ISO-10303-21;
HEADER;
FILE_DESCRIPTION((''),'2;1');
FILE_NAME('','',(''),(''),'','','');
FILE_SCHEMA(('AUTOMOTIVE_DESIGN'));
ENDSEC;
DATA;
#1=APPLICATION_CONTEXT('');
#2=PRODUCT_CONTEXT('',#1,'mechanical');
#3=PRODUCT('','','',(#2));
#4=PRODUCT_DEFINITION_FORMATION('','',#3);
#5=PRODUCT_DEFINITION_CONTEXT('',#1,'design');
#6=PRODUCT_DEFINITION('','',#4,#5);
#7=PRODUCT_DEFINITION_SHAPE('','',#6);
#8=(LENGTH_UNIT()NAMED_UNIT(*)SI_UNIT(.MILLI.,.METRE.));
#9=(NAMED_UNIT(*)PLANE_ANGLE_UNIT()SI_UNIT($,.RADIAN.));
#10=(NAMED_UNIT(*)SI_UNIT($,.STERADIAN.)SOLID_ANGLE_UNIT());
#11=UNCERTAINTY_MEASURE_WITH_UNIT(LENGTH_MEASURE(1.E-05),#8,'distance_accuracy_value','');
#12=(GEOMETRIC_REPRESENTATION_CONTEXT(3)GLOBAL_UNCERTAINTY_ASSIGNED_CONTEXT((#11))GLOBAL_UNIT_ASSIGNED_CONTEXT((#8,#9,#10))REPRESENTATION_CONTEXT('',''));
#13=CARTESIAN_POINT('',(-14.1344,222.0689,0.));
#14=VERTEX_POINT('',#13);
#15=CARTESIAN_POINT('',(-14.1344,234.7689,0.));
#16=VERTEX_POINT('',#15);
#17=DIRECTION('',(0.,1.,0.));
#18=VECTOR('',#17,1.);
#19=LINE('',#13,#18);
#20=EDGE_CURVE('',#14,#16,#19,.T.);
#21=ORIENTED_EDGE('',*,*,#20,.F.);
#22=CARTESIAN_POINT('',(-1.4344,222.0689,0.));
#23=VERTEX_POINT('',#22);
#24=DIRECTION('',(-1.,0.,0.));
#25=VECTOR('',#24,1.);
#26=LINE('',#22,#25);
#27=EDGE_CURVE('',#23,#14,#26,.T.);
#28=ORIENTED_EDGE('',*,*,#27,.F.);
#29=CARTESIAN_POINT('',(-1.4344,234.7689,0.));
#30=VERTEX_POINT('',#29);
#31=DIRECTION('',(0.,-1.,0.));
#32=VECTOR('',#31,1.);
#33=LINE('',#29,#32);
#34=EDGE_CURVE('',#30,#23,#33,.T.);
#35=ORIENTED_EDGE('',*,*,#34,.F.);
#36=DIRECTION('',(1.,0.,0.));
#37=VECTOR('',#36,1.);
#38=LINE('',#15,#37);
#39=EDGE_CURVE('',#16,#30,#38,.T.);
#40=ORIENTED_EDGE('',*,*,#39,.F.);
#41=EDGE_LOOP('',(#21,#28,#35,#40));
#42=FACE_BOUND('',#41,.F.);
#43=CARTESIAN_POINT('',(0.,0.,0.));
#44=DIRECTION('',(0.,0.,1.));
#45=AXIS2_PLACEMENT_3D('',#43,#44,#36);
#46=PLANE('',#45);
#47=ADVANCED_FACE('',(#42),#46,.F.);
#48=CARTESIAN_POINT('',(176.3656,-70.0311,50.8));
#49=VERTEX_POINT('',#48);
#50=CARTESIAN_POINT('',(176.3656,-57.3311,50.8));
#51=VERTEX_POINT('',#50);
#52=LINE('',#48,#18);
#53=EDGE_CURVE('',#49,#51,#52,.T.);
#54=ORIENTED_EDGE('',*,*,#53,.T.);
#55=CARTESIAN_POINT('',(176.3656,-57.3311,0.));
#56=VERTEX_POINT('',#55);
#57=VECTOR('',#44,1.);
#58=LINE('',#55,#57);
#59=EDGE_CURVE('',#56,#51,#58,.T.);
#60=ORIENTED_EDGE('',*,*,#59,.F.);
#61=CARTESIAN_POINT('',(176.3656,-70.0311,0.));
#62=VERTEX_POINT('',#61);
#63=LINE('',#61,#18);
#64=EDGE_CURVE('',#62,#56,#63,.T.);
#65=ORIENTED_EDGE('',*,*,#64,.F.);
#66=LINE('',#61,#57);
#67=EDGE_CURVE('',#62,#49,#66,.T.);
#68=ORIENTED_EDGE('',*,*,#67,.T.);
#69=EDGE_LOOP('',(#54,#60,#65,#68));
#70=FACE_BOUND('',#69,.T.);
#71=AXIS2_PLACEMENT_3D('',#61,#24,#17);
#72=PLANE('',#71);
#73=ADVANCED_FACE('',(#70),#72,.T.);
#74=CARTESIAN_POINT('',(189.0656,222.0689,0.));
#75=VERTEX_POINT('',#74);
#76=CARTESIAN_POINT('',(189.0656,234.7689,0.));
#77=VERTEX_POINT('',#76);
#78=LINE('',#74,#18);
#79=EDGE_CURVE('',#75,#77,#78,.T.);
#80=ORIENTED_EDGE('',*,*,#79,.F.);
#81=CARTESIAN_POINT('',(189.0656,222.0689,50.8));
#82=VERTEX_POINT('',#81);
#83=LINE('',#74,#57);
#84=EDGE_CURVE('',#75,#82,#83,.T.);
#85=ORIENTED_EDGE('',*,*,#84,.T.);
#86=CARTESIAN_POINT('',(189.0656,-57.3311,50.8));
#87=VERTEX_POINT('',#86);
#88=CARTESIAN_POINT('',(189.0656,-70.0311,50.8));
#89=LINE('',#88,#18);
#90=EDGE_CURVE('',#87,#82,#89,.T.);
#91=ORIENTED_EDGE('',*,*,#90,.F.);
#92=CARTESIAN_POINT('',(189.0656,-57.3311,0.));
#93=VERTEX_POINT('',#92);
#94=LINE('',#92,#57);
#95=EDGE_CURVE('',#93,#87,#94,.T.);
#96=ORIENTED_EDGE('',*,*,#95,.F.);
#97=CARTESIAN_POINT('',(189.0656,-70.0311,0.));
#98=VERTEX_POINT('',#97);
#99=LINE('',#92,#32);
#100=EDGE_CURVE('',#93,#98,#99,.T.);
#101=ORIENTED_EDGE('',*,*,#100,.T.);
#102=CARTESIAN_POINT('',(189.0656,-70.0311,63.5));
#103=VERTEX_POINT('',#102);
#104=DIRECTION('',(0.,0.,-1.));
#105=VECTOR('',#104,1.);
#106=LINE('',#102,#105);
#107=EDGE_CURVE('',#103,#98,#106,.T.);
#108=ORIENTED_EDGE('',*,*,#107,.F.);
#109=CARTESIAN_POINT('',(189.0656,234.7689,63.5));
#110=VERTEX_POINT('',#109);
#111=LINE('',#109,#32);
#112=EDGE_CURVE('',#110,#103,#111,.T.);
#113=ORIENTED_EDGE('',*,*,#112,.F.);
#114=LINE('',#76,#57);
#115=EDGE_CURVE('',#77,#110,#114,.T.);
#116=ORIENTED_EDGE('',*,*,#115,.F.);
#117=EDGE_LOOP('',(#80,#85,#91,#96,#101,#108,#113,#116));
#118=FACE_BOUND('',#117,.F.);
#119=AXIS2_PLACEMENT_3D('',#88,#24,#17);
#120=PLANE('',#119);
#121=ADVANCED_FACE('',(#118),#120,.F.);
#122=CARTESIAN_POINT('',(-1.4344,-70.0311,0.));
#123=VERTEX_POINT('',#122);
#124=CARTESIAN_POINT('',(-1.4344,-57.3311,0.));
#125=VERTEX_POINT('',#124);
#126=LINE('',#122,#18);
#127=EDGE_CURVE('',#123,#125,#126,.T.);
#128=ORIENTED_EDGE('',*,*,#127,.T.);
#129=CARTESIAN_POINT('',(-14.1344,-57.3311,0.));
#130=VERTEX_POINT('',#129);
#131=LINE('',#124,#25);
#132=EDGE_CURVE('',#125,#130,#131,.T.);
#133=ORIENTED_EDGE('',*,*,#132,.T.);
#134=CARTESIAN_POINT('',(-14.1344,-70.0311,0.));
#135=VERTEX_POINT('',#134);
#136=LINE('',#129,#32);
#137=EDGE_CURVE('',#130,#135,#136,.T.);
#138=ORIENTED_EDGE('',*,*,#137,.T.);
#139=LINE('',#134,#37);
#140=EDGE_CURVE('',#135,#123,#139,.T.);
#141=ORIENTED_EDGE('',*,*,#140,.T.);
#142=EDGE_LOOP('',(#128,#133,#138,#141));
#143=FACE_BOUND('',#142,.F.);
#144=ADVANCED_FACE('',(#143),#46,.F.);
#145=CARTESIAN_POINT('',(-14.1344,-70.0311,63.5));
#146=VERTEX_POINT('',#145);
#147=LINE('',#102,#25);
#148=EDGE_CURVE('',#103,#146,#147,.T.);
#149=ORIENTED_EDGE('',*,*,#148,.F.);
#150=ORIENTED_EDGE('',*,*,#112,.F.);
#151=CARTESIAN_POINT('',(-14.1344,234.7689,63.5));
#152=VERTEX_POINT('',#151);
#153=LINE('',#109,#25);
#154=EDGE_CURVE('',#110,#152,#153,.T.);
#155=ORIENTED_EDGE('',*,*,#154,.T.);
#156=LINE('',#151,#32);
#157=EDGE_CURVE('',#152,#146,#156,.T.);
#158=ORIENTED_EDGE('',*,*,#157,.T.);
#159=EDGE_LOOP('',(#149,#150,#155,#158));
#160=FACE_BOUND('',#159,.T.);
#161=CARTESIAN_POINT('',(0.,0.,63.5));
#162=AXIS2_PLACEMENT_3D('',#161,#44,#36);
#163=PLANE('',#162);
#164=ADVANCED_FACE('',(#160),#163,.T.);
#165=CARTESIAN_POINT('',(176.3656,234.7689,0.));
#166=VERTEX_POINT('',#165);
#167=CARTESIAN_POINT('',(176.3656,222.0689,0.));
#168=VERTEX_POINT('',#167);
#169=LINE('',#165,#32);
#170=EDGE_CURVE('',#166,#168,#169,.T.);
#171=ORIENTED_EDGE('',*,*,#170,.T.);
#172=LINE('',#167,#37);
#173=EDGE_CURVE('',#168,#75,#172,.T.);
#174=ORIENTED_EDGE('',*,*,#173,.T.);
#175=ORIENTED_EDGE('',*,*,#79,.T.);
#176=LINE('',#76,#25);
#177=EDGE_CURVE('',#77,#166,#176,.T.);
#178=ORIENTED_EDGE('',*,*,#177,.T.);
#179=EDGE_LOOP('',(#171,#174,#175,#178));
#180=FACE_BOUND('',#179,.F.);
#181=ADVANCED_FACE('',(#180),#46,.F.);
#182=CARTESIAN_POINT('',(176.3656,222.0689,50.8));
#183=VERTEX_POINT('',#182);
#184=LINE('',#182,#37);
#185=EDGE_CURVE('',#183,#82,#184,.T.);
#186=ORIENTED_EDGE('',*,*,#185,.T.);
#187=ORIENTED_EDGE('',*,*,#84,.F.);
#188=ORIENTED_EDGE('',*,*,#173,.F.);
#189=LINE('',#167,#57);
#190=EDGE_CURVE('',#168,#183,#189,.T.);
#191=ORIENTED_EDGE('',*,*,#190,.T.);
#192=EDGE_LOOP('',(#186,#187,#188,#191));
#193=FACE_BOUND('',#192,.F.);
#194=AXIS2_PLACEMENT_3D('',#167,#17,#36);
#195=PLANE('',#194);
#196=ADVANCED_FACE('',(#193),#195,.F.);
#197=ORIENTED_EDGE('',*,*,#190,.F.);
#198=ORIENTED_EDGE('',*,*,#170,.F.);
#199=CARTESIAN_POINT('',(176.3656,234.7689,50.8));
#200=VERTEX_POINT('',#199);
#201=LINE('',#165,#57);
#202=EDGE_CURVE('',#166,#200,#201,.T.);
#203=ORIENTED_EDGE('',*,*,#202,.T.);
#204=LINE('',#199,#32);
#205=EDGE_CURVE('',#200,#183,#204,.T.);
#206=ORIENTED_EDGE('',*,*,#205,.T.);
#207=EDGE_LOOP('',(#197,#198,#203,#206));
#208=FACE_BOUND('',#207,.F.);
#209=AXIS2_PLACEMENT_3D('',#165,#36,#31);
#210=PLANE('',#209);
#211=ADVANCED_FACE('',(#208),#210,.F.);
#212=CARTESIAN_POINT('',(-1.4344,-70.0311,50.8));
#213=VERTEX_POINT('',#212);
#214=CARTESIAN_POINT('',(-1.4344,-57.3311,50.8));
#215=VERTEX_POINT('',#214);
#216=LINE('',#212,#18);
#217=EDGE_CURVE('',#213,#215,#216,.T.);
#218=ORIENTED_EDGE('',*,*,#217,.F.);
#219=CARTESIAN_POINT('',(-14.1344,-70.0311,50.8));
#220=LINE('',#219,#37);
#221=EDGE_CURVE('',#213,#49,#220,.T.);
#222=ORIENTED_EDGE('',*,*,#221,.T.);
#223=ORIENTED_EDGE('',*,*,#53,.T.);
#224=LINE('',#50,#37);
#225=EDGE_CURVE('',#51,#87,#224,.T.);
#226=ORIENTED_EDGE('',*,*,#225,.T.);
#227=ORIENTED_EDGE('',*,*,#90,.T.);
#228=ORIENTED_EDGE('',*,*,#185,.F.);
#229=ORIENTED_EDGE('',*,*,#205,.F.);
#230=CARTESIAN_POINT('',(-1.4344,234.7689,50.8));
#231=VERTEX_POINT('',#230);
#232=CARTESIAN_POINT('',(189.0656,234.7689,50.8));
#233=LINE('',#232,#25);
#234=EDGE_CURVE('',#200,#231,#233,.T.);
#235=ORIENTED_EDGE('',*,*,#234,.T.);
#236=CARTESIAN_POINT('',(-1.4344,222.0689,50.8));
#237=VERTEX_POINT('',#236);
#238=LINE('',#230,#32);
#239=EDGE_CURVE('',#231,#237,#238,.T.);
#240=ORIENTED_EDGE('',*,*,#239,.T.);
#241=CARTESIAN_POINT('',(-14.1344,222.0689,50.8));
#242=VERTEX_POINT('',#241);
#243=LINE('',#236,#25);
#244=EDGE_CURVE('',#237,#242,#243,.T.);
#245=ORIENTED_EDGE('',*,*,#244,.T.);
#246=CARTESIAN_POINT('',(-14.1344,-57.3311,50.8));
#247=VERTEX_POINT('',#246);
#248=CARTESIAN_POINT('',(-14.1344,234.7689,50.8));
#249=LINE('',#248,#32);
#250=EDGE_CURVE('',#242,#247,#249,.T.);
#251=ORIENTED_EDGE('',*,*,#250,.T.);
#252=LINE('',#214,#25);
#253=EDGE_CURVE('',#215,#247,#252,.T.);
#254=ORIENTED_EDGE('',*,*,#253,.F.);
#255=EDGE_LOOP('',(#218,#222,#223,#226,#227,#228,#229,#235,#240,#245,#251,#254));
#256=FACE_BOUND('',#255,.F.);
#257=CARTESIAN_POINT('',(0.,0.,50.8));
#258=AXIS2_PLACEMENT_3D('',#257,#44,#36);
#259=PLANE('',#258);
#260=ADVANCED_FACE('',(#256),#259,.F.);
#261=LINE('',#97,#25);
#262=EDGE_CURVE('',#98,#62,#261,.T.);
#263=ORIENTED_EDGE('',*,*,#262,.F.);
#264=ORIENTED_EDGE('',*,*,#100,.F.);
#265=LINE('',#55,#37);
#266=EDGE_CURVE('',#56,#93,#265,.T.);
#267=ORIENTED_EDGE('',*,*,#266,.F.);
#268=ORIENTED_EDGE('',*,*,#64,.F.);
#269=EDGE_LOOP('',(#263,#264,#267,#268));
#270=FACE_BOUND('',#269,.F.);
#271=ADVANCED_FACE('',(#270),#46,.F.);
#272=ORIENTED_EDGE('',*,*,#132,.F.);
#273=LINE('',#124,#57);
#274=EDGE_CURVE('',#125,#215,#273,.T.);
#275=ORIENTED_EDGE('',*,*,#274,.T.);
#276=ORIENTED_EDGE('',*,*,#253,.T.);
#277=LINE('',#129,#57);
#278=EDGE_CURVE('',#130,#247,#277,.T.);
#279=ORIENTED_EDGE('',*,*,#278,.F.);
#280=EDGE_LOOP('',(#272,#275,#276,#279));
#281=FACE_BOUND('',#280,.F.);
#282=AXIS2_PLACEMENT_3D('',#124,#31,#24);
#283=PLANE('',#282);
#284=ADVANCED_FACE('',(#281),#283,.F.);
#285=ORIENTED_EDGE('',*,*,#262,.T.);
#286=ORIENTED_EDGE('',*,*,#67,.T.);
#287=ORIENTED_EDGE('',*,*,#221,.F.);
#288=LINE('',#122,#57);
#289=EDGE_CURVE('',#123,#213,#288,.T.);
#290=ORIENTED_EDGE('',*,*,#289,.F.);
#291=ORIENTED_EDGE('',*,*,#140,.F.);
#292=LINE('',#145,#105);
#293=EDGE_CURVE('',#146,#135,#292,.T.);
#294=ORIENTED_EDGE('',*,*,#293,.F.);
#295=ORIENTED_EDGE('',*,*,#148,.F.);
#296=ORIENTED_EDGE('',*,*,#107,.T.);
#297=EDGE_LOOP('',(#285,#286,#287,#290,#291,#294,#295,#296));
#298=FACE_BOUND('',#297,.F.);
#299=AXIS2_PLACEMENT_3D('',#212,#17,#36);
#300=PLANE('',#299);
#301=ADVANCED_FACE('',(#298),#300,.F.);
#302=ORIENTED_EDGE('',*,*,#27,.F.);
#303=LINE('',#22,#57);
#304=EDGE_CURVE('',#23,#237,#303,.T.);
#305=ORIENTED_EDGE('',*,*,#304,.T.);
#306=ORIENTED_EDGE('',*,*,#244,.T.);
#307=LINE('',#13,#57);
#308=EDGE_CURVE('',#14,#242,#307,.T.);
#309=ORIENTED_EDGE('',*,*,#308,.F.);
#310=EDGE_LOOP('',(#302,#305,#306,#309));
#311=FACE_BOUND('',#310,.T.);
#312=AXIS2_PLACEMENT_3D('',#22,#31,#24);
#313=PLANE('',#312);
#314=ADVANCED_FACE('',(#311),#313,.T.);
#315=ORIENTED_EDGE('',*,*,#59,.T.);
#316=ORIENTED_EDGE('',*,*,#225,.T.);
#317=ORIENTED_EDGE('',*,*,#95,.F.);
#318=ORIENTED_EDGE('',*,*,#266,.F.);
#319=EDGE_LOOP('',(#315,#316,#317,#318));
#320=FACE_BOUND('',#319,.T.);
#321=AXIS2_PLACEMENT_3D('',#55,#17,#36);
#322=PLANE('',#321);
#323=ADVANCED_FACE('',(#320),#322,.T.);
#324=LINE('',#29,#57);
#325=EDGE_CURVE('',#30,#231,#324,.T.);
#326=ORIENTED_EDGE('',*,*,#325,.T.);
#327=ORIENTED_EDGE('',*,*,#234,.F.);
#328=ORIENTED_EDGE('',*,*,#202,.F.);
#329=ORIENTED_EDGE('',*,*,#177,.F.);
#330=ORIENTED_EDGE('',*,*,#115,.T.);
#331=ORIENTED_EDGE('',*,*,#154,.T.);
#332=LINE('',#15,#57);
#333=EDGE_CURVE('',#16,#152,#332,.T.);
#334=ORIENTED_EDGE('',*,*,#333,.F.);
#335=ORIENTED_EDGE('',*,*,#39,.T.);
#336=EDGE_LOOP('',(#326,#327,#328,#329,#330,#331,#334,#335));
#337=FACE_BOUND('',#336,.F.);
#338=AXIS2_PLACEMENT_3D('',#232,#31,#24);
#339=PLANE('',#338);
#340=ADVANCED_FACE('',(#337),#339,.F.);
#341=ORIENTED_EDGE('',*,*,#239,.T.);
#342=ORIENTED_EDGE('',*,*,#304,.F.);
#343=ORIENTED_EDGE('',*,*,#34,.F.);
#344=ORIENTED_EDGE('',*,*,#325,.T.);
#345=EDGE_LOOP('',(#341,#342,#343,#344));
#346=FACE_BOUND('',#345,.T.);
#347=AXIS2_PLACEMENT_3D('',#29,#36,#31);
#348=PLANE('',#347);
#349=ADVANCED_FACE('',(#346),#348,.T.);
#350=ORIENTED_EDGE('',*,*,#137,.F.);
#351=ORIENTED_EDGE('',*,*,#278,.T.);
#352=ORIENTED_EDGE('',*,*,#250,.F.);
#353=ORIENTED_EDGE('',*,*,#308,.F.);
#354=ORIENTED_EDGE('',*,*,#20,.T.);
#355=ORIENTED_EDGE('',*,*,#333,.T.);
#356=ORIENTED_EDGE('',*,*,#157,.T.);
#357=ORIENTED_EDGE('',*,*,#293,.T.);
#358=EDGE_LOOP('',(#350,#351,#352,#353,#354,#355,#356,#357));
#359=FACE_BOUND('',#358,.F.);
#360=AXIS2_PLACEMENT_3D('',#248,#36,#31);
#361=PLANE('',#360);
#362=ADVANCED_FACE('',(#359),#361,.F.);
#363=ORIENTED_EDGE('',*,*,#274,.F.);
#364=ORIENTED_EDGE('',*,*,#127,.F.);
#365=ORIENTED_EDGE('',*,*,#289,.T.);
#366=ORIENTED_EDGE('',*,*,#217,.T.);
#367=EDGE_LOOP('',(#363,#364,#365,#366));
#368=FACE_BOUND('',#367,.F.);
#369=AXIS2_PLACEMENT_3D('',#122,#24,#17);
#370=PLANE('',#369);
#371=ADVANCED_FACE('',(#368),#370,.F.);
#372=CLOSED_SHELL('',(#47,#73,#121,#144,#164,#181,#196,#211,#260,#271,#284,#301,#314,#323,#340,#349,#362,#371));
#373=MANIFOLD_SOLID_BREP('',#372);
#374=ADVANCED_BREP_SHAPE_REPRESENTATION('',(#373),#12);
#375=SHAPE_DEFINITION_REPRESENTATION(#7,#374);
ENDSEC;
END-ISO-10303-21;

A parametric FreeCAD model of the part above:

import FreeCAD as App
import Part
import Sketcher
from FreeCAD import Vector
Q = App.Units.Quantity


def add_polygon(sketch, points):
    """Adds a closed chain of lines whose ends are joined by coincident constraints."""
    first, n = sketch.GeometryCount, len(points)
    for a, b in zip(points, points[1:] + points[:1]):
        sketch.addGeometry(Part.LineSegment(App.Vector(*a, 0), App.Vector(*b, 0)), False)
    for i in range(n):
        sketch.addConstraint(Sketcher.Constraint("Coincident", first + i, 2, first + (i + 1) % n, 1))

doc = App.newDocument("Part")
body = doc.addObject("PartDesign::Body", "Body")
body.AllowCompound = True

# Sketch on XY plane
sketch1 = body.newObject("Sketcher::SketchObject", "Sketch")
sketch1.AttachmentSupport = (doc.getObject("XY_Plane"), [""])
sketch1.MapMode = "FlatFace"
add_polygon(sketch1, [(189, 222), (189, 235), (176, 235), (176, 222)])  # lines 0-3
add_polygon(sketch1, [(-1, 235), (-14, 235), (-14, 222), (-1, 222)])  # lines 4-7
add_polygon(sketch1, [(176, -70), (189, -70), (189, -57), (176, -57)])  # lines 8-11
add_polygon(sketch1, [(-14, -57), (-14, -70), (-1, -70), (-1, -57)])  # lines 12-15
sketch1.addConstraint([
    Sketcher.Constraint("Vertical", 0),
    Sketcher.Constraint("Horizontal", 1),
    Sketcher.Constraint("Vertical", 2),
    Sketcher.Constraint("Horizontal", 3),
    Sketcher.Constraint("Horizontal", 4),
    Sketcher.Constraint("Vertical", 5),
    Sketcher.Constraint("Horizontal", 6),
    Sketcher.Constraint("Vertical", 7),
    Sketcher.Constraint("Horizontal", 8),
    Sketcher.Constraint("Vertical", 9),
    Sketcher.Constraint("Horizontal", 10),
    Sketcher.Constraint("Vertical", 11),
    Sketcher.Constraint("Vertical", 12),
    Sketcher.Constraint("Horizontal", 13),
    Sketcher.Constraint("Vertical", 14),
    Sketcher.Constraint("Horizontal", 15),
    Sketcher.Constraint("Horizontal", 1, 2, 4, 2),
    Sketcher.Constraint("Horizontal", 3, 2, 5, 2),
    Sketcher.Constraint("Horizontal", 11, 2, 12, 2),
    Sketcher.Constraint("Horizontal", 10, 2, 14, 2),
    Sketcher.Constraint("Vertical", 3, 2, 8, 2),
    Sketcher.Constraint("Vertical", 2, 2, 10, 2),
    Sketcher.Constraint("Vertical", 5, 2, 12, 2),
    Sketcher.Constraint("Vertical", 7, 2, 13, 2),
    Sketcher.Constraint("Equal", 3, 4),
    Sketcher.Constraint("Equal", 15, 0),
    Sketcher.Constraint("Equal", 7, 9),
    Sketcher.Constraint("DistanceX", 1, 2, 1, 1, Q("0.5 in")),
    Sketcher.Constraint("DistanceX", 4, 2, 0, 2, Q("8 in")),
    Sketcher.Constraint("DistanceY", 8, 2, 0, 2, Q("12 in")),
    Sketcher.Constraint("DistanceX", -1, 1, 0, 2, 189.0656),
    Sketcher.Constraint("DistanceY", -1, 1, 0, 2, 234.769),
])
pad1 = body.newObject("PartDesign::Pad", "Pad")
pad1.Profile = sketch1
pad1.Length = Q("2 in")

# Sketch on XY plane
sketch2 = body.newObject("Sketcher::SketchObject", "Sketch001")
sketch2.AttachmentSupport = (doc.getObject("XY_Plane"), [""])
sketch2.MapMode = "FlatFace"
sketch2.AttachmentOffset = App.Placement(Vector(0, 0, 2 * 25.4), App.Rotation())
add_polygon(sketch2, [(189, -70), (189, 235), (-14, 235), (-14, -70)])  # lines 0-3
sketch2.addConstraint([
    Sketcher.Constraint("Vertical", 0),
    Sketcher.Constraint("Horizontal", 1),
    Sketcher.Constraint("Vertical", 2),
    Sketcher.Constraint("Horizontal", 3),
    Sketcher.Constraint("DistanceX", 1, 2, 1, 1, Q("8 in")),
    Sketcher.Constraint("DistanceY", 0, 1, 0, 2, Q("12 in")),
    Sketcher.Constraint("DistanceX", -1, 1, 0, 2, 189.0656),
    Sketcher.Constraint("DistanceY", -1, 1, 0, 2, 234.769),
])
pad2 = body.newObject("PartDesign::Pad", "Pad001")
pad2.Profile = sketch2
pad2.Length = Q("0.5 in")

doc.recompute()
